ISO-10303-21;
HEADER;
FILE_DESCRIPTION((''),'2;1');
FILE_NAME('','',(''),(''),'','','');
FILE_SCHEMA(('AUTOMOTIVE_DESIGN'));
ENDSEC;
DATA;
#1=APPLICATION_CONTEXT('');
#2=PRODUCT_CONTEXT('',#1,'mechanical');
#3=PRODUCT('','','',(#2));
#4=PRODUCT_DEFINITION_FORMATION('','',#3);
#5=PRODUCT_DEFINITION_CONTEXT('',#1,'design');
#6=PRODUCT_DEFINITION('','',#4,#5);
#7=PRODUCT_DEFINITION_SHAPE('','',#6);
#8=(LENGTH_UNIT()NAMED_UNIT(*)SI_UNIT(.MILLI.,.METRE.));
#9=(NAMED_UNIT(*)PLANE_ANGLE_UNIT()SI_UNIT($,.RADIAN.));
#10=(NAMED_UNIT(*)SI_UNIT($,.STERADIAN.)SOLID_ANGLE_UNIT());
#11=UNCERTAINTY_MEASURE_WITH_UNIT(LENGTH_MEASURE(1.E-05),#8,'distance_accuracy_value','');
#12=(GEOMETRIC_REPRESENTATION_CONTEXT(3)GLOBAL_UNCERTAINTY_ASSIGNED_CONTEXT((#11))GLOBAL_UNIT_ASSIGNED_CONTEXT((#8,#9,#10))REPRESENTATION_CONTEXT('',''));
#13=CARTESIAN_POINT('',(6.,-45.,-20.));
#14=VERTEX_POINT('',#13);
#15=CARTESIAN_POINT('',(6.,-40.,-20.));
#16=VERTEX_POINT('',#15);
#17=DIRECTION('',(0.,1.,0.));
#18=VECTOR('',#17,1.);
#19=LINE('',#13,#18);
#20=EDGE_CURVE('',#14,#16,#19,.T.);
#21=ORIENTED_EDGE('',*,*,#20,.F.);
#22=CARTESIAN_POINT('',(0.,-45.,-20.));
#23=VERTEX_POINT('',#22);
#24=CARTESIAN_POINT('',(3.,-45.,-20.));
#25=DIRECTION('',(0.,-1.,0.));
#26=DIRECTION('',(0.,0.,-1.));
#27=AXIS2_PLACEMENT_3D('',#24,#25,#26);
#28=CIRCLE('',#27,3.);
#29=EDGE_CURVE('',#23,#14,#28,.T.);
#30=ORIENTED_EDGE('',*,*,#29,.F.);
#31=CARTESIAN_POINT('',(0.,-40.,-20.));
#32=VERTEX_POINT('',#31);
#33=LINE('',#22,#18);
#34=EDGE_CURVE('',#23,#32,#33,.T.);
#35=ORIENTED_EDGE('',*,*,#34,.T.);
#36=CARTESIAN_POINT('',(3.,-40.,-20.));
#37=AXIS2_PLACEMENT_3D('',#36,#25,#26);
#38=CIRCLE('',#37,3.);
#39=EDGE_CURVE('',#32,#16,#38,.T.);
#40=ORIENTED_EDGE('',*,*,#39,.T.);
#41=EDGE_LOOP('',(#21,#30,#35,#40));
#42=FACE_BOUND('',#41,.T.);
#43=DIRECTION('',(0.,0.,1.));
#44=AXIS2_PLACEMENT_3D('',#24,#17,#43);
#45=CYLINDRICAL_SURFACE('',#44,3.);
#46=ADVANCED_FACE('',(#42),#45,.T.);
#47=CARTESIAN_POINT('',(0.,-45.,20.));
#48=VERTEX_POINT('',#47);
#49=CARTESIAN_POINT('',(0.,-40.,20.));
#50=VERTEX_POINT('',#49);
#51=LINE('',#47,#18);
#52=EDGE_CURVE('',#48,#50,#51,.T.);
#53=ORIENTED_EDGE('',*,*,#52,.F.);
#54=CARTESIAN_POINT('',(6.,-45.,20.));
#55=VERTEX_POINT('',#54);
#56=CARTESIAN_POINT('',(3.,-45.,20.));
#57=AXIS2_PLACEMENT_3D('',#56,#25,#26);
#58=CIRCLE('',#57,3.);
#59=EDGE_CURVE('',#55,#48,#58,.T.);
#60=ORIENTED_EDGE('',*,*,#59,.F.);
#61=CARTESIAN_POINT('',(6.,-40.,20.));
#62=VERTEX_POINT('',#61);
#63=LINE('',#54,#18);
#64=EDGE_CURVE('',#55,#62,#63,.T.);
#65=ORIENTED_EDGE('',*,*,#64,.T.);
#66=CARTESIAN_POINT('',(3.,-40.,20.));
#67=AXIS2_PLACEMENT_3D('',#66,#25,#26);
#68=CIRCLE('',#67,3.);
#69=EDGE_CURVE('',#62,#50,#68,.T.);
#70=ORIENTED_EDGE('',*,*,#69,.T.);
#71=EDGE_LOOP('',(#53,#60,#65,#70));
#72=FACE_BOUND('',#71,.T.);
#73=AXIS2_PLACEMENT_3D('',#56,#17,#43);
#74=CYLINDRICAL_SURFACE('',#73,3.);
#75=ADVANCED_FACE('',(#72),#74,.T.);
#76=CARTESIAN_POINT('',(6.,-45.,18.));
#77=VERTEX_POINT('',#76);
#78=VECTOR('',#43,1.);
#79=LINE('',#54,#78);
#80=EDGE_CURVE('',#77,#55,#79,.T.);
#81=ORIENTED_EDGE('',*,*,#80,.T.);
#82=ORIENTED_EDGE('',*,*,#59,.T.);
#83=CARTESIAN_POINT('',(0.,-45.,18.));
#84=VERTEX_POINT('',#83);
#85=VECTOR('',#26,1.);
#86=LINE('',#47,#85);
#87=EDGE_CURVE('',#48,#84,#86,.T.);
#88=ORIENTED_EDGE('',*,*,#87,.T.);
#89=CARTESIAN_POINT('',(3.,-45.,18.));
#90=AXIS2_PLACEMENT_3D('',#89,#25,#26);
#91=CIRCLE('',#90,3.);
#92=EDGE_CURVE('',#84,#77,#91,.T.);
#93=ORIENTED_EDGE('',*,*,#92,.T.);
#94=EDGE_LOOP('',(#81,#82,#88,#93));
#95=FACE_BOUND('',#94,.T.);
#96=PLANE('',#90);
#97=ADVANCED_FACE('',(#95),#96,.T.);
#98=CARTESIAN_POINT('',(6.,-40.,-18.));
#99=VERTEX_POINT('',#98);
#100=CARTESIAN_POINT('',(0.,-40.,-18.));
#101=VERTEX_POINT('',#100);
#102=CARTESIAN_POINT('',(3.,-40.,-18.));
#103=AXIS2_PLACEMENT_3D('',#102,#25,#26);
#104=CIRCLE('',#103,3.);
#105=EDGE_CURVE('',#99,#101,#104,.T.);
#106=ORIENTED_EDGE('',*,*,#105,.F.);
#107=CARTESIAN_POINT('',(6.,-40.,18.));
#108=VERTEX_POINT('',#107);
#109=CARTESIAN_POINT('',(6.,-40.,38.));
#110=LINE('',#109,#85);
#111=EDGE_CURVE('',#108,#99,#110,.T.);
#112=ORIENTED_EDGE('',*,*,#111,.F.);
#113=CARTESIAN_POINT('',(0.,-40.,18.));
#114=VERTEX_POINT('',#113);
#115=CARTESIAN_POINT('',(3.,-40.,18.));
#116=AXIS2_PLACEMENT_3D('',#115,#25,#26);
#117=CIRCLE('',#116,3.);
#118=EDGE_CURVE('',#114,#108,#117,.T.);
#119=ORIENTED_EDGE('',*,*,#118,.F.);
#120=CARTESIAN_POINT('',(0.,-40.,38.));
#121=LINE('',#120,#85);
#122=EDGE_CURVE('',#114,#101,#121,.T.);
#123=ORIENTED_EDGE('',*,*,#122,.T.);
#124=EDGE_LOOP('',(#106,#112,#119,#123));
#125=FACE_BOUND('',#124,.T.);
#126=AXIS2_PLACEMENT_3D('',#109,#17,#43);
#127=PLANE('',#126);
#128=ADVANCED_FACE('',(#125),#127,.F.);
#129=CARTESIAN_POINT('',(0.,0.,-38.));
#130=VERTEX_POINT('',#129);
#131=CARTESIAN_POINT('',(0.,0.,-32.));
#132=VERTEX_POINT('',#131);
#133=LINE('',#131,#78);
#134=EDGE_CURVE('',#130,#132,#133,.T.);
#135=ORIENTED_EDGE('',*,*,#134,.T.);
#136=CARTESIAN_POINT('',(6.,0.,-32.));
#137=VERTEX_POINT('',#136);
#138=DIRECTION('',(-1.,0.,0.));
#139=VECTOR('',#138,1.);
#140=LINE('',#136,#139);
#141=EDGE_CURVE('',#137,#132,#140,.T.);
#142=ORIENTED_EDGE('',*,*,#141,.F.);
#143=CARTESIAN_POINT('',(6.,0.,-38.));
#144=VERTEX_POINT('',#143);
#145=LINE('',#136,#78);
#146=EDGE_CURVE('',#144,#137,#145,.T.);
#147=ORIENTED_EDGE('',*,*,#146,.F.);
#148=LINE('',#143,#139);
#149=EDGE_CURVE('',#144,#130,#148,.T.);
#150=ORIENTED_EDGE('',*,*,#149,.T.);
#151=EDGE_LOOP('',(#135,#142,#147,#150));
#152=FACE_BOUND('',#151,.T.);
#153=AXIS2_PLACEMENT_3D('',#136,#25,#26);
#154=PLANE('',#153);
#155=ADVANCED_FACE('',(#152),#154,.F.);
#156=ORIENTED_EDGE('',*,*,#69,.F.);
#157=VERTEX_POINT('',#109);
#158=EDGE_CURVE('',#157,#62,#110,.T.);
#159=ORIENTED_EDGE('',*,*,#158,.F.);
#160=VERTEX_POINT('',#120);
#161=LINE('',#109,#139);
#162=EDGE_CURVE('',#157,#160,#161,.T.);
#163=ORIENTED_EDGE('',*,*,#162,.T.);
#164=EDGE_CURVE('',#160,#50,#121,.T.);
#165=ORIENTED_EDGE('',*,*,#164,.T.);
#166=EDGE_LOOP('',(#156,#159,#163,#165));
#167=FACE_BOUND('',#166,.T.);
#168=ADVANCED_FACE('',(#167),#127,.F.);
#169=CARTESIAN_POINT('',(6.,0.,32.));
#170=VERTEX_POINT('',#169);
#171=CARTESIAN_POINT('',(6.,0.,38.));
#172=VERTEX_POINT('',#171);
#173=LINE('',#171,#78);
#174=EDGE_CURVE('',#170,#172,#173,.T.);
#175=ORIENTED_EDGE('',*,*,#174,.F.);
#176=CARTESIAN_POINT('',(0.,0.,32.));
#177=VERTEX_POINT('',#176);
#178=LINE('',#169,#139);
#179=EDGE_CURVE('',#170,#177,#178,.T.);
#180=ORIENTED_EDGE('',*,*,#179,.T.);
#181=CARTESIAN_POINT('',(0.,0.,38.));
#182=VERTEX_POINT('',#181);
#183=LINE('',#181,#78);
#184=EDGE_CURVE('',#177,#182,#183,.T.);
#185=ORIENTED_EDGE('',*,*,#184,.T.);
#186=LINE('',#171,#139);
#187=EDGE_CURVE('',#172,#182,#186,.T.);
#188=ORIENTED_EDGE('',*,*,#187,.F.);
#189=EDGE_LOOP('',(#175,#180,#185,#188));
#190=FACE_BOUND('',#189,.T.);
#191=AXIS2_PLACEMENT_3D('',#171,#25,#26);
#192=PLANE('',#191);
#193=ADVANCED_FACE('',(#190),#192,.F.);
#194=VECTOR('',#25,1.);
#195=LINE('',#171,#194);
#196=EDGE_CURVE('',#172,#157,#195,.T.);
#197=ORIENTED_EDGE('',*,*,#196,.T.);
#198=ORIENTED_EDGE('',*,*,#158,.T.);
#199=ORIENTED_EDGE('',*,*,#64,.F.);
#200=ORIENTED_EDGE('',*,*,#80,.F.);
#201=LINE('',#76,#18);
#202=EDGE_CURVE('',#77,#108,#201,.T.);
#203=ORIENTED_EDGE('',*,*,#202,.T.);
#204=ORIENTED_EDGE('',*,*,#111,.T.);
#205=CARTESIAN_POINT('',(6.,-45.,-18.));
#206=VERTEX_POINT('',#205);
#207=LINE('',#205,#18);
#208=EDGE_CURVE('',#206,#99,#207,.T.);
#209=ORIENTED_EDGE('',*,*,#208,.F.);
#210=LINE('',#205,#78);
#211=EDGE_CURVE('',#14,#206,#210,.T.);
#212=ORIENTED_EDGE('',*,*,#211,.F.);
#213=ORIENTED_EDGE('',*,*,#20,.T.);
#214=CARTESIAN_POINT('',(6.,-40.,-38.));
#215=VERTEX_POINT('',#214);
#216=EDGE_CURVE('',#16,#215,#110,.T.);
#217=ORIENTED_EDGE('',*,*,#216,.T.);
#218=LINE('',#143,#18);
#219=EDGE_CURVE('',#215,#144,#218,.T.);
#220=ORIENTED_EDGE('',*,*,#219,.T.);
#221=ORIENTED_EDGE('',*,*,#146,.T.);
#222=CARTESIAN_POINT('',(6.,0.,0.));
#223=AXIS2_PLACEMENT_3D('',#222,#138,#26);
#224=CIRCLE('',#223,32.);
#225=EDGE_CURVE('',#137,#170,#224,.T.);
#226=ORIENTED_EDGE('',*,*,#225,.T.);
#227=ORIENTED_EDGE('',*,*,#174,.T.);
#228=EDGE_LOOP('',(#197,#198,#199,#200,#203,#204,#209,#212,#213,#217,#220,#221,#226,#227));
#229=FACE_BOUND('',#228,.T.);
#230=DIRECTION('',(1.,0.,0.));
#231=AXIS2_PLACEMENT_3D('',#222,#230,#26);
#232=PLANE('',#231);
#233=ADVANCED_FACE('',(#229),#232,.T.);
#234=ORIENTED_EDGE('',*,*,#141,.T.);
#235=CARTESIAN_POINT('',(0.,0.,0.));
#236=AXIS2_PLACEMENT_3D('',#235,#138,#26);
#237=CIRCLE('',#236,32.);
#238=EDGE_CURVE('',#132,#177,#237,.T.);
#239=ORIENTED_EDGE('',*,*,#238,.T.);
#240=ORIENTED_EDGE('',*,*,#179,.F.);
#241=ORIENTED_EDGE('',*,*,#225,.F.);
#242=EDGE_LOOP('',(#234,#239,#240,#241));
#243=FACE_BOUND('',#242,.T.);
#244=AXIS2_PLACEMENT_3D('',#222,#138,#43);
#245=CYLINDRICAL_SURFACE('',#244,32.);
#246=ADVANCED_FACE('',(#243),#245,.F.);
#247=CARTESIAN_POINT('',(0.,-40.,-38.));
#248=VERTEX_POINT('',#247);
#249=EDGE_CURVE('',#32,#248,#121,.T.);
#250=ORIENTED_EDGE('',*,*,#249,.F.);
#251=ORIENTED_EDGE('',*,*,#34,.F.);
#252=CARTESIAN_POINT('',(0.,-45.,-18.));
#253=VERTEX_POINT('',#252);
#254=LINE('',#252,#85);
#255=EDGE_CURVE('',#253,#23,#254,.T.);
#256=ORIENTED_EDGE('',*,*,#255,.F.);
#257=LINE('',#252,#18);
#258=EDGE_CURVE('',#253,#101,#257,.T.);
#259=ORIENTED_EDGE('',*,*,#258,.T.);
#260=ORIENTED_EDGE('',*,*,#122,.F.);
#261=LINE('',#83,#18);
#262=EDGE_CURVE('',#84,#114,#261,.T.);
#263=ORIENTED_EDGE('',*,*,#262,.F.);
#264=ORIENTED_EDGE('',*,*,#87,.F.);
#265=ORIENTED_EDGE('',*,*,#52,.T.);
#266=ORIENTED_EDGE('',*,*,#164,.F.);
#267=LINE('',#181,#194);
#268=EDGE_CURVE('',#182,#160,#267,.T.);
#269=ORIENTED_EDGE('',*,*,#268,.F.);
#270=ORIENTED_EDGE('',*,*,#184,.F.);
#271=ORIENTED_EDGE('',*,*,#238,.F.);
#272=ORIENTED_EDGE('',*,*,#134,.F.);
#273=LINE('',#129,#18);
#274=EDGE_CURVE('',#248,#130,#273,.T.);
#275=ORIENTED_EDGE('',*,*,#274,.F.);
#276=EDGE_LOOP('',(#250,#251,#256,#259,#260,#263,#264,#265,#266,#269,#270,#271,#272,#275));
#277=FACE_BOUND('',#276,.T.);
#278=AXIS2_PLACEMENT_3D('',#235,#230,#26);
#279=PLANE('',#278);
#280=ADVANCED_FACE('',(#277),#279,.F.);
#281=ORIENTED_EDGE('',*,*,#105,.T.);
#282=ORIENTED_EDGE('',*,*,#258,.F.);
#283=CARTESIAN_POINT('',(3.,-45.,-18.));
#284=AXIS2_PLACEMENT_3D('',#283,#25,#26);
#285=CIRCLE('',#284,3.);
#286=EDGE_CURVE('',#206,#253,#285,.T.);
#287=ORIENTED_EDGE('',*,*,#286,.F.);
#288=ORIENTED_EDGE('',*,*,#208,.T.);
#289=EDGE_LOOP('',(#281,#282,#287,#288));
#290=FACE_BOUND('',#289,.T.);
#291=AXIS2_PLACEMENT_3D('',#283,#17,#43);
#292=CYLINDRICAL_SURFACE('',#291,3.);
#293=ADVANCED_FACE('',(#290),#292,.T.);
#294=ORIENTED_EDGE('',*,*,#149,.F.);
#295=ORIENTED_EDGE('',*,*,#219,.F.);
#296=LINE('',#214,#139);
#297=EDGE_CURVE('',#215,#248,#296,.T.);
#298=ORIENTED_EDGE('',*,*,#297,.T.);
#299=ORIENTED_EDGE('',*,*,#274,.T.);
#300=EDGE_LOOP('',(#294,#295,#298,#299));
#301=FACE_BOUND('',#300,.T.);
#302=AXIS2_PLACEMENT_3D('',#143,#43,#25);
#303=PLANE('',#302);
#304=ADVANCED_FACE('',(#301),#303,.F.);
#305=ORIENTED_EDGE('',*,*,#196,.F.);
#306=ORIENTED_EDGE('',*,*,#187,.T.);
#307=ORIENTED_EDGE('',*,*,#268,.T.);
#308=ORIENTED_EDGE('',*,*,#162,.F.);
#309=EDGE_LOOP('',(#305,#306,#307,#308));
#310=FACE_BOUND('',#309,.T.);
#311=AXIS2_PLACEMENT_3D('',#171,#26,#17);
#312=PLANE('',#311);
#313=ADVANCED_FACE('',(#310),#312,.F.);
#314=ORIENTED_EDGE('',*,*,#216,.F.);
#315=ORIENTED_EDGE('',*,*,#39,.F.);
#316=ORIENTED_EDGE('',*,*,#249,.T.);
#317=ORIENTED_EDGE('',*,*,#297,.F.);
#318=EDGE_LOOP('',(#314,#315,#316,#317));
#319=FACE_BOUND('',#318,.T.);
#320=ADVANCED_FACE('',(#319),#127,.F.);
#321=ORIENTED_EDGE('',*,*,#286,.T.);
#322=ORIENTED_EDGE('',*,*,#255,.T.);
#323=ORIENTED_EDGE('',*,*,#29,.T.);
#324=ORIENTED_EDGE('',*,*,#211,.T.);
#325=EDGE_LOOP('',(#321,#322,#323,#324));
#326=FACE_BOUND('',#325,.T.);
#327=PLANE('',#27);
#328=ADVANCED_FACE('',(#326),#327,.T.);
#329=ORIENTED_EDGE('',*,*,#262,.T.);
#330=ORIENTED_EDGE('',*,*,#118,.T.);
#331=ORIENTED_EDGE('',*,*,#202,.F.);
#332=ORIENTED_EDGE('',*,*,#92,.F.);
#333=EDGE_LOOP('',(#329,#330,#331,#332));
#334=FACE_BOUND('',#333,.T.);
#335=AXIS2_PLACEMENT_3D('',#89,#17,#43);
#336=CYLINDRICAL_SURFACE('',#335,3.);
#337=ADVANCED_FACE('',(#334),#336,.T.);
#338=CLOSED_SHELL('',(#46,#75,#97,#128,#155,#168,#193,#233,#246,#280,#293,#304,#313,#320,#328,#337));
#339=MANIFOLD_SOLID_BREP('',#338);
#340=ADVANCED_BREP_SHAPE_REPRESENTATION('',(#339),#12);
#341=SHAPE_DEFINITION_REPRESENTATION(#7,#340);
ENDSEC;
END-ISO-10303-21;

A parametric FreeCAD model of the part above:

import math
import FreeCAD as App
import Part
import Sketcher
from FreeCAD import Vector

doc = App.newDocument("Part")
body = doc.addObject("PartDesign::Body", "Body")

# Sketch on YZ plane
sketch1 = body.newObject("Sketcher::SketchObject", "Sketch")
sketch1.AttachmentSupport = (doc.getObject("YZ_Plane"), [""])
sketch1.MapMode = "FlatFace"
sketch1.addGeometry([
    Part.LineSegment(Vector(0, 32, 0), Vector(0, 38, 0)),  # 0
    Part.LineSegment(Vector(0, 38, 0), Vector(-40, 38, 0)),  # 1
    Part.LineSegment(Vector(-40, 38, 0), Vector(-40, -38, 0)),  # 2
    Part.LineSegment(Vector(-40, -38, 0), Vector(0, -38, 0)),  # 3
    Part.LineSegment(Vector(0, -38, 0), Vector(0, -32, 0)),  # 4
    Part.ArcOfCircle(Part.Circle(Vector(0, 0, 0), Vector(0, 0, 1), 32), math.radians(90), math.radians(270)),  # 5
], False)
sketch1.addConstraint([
    Sketcher.Constraint("Coincident", 0, 2, 1, 1),
    Sketcher.Constraint("Coincident", 1, 2, 2, 1),
    Sketcher.Constraint("Coincident", 2, 2, 3, 1),
    Sketcher.Constraint("Coincident", 3, 2, 4, 1),
    Sketcher.Constraint("Coincident", 4, 2, 5, 2),
    Sketcher.Constraint("Coincident", 5, 1, 0, 1),
    Sketcher.Constraint("Vertical", 0),
    Sketcher.Constraint("Horizontal", 1),
    Sketcher.Constraint("Vertical", 2),
    Sketcher.Constraint("Horizontal", 3),
    Sketcher.Constraint("Vertical", 4),
    Sketcher.Constraint("Coincident", 5, 3, -1, 1),
    Sketcher.Constraint("Symmetric", 0, 2, 3, 2, -1, 1),
    Sketcher.Constraint("PointOnObject", 0, 2, -2),
    Sketcher.Constraint("Radius", 5, 32.0),
    Sketcher.Constraint("DistanceX", 1, 2, 1, 1, 40.0),
    Sketcher.Constraint("DistanceY", 0, 1, 0, 2, 6.0),
])
pad1 = body.newObject("PartDesign::Pad", "Pad")
pad1.Profile = sketch1
pad1.Length = 6

# Sketch on XZ plane
sketch2 = body.newObject("Sketcher::SketchObject", "Sketch001")
sketch2.AttachmentSupport = (doc.getObject("XZ_Plane"), [""])
sketch2.MapMode = "FlatFace"
sketch2.AttachmentOffset = App.Placement(Vector(0, 0, 40), App.Rotation())
sketch2.addGeometry([
    Part.LineSegment(Vector(0, 20, 0), Vector(0, 18, 0)),  # 0
    Part.ArcOfCircle(Part.Circle(Vector(3, 18, 0), Vector(0, 0, 1), 3), math.radians(180), math.radians(360)),  # 1
    Part.LineSegment(Vector(6, 18, 0), Vector(6, 20, 0)),  # 2
    Part.ArcOfCircle(Part.Circle(Vector(3, 20, 0), Vector(0, 0, 1), 3), math.radians(0), math.radians(180)),  # 3
    Part.LineSegment(Vector(0, -18, 0), Vector(0, -20, 0)),  # 4
    Part.ArcOfCircle(Part.Circle(Vector(3, -20, 0), Vector(0, 0, 1), 3), math.radians(180), math.radians(360)),  # 5
    Part.LineSegment(Vector(6, -20, 0), Vector(6, -18, 0)),  # 6
    Part.ArcOfCircle(Part.Circle(Vector(3, -18, 0), Vector(0, 0, 1), 3), math.radians(0), math.radians(180)),  # 7
], False)
sketch2.addConstraint([
    Sketcher.Constraint("Tangent", 0, 2, 1, 1),
    Sketcher.Constraint("Tangent", 1, 2, 2, 1),
    Sketcher.Constraint("Tangent", 2, 2, 3, 1),
    Sketcher.Constraint("Tangent", 3, 2, 0, 1),
    Sketcher.Constraint("Tangent", 4, 2, 5, 1),
    Sketcher.Constraint("Tangent", 5, 2, 6, 1),
    Sketcher.Constraint("Tangent", 6, 2, 7, 1),
    Sketcher.Constraint("Tangent", 7, 2, 4, 1),
    Sketcher.Constraint("Vertical", 0),
    Sketcher.Constraint("Vertical", 2),
    Sketcher.Constraint("Vertical", 4),
    Sketcher.Constraint("Vertical", 6),
    Sketcher.Constraint("Equal", 3, 5),
    Sketcher.Constraint("Symmetric", 3, 2, 4, 2, -1, 1),
    Sketcher.Constraint("Symmetric", 1, 3, 7, 3, -1),
    Sketcher.Constraint("Radius", 1, 3.0),
    Sketcher.Constraint("DistanceY", 0, 2, 0, 1, 2.0),
    Sketcher.Constraint("DistanceY", -1, 1, 1, 3, 18.0),
])
pad2 = body.newObject("PartDesign::Pad", "Pad001")
pad2.Profile = sketch2
pad2.Length = 5

doc.recompute()
